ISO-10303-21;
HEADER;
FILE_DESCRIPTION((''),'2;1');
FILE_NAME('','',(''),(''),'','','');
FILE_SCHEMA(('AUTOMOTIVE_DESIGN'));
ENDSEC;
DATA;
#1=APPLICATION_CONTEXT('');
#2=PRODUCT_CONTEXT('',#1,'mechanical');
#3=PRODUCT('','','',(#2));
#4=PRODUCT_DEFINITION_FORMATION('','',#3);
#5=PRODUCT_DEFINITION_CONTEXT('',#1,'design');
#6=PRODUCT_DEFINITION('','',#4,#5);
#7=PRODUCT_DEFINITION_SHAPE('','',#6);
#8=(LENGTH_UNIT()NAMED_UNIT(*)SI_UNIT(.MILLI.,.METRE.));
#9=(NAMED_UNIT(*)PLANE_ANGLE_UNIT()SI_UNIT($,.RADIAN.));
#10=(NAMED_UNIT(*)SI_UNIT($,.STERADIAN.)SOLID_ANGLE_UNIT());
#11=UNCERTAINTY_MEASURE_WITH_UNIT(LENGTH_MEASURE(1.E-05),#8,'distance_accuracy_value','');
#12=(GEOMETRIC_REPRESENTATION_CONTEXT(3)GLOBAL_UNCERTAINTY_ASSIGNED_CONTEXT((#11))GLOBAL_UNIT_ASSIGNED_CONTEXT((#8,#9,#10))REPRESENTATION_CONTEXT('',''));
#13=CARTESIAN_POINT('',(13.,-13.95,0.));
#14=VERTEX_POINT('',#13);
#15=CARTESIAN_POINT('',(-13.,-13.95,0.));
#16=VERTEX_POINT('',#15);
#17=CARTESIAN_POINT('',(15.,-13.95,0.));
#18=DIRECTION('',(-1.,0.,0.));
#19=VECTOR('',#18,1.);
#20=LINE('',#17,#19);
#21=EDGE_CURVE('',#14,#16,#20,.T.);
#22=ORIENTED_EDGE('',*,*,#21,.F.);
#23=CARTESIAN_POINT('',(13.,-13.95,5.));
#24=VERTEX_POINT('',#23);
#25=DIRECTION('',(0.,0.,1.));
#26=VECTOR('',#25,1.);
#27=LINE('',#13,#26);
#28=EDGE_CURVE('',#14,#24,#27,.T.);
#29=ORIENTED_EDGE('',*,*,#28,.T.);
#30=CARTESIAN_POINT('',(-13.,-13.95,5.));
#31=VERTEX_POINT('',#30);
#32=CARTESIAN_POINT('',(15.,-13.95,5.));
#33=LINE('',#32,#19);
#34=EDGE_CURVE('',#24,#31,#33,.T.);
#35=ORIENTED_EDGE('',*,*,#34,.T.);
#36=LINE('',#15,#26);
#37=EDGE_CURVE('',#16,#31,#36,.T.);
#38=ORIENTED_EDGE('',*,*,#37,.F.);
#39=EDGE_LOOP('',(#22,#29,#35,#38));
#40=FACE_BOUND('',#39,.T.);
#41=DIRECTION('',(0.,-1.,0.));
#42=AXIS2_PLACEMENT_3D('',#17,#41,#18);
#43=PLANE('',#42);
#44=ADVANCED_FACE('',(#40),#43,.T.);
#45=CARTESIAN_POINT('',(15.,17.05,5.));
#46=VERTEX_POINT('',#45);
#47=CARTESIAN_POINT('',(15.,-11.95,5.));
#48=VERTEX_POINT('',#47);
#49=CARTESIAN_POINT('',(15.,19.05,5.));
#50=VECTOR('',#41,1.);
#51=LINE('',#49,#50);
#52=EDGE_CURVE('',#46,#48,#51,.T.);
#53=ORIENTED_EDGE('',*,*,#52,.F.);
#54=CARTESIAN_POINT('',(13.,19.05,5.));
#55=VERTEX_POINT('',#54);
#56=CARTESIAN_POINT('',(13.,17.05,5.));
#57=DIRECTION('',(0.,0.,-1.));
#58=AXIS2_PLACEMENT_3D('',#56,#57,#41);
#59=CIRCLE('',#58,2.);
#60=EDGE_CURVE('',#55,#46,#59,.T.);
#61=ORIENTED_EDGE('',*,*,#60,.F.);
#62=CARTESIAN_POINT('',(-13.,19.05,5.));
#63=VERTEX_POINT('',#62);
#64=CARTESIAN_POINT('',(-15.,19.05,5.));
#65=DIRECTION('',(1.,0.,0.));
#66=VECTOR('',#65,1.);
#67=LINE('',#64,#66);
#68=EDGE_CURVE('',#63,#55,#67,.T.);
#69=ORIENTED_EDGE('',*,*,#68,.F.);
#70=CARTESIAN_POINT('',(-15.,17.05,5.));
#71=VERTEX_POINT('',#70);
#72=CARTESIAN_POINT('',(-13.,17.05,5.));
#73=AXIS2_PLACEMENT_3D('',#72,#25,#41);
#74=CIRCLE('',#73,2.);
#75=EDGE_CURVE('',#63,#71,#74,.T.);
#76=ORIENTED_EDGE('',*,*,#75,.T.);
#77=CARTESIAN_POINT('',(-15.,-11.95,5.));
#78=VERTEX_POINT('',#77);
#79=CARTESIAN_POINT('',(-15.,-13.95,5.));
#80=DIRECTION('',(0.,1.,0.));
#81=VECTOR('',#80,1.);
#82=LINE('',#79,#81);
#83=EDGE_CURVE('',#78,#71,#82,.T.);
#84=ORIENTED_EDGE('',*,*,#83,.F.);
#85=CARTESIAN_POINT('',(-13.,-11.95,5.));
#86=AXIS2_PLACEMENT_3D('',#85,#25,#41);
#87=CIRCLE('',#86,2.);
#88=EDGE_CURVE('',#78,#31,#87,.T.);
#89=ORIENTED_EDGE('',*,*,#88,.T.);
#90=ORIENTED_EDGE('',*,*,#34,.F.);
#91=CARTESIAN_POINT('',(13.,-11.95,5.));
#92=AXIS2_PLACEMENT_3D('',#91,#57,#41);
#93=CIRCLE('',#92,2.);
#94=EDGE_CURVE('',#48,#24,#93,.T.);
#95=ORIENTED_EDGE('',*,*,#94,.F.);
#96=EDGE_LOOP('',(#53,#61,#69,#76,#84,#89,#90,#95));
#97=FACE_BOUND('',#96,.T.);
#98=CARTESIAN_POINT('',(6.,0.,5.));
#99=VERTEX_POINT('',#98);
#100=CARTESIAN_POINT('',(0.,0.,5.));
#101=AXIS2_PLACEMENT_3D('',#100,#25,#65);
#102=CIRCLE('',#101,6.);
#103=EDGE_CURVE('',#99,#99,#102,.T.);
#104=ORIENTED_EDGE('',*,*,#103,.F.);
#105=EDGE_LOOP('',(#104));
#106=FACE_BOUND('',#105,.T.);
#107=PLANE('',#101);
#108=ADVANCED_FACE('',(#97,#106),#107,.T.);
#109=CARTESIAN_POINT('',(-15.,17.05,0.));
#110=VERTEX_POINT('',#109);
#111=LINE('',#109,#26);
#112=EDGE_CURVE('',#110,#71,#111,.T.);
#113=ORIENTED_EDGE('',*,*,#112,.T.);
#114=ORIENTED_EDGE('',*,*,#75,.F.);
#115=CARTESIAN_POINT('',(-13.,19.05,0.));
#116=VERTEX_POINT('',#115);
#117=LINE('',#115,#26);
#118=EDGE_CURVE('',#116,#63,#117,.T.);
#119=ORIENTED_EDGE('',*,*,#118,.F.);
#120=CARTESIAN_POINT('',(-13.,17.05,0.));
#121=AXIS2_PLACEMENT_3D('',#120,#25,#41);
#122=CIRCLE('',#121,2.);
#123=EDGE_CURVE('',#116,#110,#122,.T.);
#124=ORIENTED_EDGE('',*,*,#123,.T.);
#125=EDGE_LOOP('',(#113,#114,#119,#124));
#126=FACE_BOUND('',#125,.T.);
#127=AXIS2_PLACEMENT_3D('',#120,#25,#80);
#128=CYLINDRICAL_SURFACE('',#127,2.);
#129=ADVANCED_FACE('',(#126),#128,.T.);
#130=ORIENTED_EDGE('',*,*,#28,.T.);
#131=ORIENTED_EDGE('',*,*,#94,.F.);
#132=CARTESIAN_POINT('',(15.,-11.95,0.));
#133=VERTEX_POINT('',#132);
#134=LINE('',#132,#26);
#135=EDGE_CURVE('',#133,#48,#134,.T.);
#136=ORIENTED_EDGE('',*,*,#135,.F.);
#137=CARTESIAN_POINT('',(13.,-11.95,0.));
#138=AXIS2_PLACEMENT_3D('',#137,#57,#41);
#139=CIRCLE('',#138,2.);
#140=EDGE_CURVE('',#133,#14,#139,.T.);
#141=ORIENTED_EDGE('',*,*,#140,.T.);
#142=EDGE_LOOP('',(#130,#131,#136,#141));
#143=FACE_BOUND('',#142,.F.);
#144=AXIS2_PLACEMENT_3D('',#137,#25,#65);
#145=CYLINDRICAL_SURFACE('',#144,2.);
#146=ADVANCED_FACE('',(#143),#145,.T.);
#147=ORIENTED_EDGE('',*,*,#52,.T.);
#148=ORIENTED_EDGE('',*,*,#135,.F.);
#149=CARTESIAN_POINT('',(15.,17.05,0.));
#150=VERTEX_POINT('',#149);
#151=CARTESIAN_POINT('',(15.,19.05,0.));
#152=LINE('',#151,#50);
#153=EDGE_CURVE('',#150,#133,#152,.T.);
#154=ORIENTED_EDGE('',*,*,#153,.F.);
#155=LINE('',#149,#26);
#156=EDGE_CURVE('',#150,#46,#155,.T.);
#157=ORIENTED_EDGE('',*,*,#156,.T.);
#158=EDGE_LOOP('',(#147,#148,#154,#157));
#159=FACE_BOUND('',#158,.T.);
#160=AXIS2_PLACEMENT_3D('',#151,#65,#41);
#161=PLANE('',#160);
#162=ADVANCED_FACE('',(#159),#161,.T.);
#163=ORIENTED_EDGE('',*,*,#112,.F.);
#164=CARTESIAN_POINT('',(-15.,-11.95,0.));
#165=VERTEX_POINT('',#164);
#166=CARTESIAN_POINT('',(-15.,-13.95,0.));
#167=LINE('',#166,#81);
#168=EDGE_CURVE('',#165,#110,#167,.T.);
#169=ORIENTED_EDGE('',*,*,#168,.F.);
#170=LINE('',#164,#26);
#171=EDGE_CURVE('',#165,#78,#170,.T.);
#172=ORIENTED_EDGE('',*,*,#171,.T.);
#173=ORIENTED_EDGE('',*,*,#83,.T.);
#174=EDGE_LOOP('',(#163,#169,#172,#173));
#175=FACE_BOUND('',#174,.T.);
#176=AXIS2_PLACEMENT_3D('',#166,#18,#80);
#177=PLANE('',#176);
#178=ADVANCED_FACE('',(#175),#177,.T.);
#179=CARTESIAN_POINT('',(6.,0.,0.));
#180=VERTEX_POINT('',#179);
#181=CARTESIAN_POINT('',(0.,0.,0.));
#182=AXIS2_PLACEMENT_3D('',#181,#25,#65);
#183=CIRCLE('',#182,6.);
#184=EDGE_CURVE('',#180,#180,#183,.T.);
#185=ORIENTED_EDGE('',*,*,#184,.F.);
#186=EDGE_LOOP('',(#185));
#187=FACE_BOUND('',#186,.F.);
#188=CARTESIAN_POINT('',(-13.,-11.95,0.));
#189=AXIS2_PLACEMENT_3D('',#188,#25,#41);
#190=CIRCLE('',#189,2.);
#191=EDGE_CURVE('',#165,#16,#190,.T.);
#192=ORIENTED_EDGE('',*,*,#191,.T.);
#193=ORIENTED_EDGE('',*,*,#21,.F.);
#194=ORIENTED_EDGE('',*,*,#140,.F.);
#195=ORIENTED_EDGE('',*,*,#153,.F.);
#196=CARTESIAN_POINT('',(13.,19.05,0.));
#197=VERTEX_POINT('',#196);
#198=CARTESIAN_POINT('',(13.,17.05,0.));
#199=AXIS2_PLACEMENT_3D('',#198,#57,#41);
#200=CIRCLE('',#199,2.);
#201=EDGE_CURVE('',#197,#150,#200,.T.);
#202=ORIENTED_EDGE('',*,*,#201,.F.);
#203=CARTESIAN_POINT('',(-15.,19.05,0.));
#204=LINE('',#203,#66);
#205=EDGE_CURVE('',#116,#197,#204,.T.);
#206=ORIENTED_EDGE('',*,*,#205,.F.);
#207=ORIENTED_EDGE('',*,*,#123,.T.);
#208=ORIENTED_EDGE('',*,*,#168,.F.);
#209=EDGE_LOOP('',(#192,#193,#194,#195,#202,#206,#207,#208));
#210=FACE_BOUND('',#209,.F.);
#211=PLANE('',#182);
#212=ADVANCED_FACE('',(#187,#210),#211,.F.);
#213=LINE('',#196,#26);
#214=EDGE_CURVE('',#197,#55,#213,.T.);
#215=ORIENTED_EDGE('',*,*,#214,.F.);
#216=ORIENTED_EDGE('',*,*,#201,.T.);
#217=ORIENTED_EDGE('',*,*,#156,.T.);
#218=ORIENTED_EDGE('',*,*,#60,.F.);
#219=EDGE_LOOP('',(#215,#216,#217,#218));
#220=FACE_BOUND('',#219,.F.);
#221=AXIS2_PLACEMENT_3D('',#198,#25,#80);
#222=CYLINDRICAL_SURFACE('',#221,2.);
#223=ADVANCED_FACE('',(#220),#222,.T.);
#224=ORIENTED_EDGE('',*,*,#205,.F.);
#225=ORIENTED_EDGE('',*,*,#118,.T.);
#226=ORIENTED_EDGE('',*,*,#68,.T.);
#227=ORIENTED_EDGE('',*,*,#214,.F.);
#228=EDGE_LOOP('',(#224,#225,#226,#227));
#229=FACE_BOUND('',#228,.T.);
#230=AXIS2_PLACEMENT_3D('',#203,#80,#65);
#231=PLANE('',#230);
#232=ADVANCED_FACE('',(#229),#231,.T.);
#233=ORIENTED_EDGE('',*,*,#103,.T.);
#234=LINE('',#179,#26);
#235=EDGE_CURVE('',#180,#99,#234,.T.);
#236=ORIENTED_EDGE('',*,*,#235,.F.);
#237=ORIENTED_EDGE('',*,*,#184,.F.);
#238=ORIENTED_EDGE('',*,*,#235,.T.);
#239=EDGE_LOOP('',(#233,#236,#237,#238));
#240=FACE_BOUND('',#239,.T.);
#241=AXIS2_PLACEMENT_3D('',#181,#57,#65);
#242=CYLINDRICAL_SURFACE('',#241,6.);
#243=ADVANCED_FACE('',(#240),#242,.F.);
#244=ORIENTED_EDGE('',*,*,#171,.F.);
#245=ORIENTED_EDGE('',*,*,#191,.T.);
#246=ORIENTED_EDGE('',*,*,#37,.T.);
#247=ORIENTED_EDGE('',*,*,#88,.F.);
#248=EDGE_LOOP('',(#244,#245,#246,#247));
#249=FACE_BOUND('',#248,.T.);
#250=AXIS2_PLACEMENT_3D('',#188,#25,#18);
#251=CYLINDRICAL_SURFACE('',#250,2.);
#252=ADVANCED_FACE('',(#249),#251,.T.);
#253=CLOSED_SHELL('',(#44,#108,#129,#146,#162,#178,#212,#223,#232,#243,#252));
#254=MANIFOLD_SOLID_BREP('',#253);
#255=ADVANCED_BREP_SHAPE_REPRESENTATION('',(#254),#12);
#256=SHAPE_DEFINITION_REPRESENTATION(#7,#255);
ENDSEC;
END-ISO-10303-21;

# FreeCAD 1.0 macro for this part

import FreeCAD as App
import Part
import Sketcher
from FreeCAD import Vector


def edges_at(feature, points):
    """Names of the edges that pass closest to the given points."""
    edges = feature.Shape.Edges
    near = lambda p: min(range(len(edges)), key=lambda i: edges[i].distToShape(Part.Vertex(*p))[0])
    return sorted({f"Edge{near(p) + 1}" for p in points})


def add_polygon(sketch, points):
    """Adds a closed chain of lines whose ends are joined by coincident constraints."""
    first, n = sketch.GeometryCount, len(points)
    for a, b in zip(points, points[1:] + points[:1]):
        sketch.addGeometry(Part.LineSegment(App.Vector(*a, 0), App.Vector(*b, 0)), False)
    for i in range(n):
        sketch.addConstraint(Sketcher.Constraint("Coincident", first + i, 2, first + (i + 1) % n, 1))

doc = App.newDocument("Part")
params = doc.addObject("Spreadsheet::Sheet", "Params")
for row, (alias, value) in enumerate([
    ("sketch1_width", "30 mm"),
    ("sketch1_height", "33 mm"),
    ("pad1_length", "5 mm"),
    ("sketch2_diameter", "12 mm"),
    ("pocket1_length", "5 mm"),
    ("fillet_radius", "2 mm"),
], start=1):
    params.set(f"A{row}", alias)
    params.set(f"B{row}", "=" + value)
    params.setAlias(f"B{row}", alias)

body = doc.addObject("PartDesign::Body", "Body")

sketch1 = doc.addObject("Sketcher::SketchObject", "Sketch")
body.addObject(sketch1)
sketch1.AttachmentSupport = (doc.XY_Plane, [""])
sketch1.MapMode = "FlatFace"
add_polygon(sketch1, [(15, 19.05), (-15, 19.05), (-15, -13.95), (15, -13.95)])
sketch1.addConstraint([
    Sketcher.Constraint("Horizontal", 0),
    Sketcher.Constraint("Vertical", 1),
    Sketcher.Constraint("Horizontal", 2),
    Sketcher.Constraint("Vertical", 3),
    Sketcher.Constraint("DistanceX", 0, 2, 0, 1, 30.0),
    Sketcher.Constraint("DistanceY", 1, 2, 1, 1, 33.0),
    Sketcher.Constraint("DistanceX", 0, 2, -1, 1, 15.0),
    Sketcher.Constraint("DistanceY", -1, 1, 0, 2, 19.05),
])
sketch1.setExpression("Constraints[8]", "Params.sketch1_width")
sketch1.setExpression("Constraints[9]", "Params.sketch1_height")
pad1 = doc.addObject("PartDesign::Pad", "Pad")
body.addObject(pad1)
pad1.Profile = sketch1
pad1.setExpression("Length", "Params.pad1_length")

sketch2 = doc.addObject("Sketcher::SketchObject", "Sketch001")
body.addObject(sketch2)
sketch2.AttachmentSupport = (doc.XY_Plane, [""])
sketch2.MapMode = "FlatFace"
sketch2.addGeometry(Part.Circle(Vector(0, 0, 0), Vector(0, 0, 1), 6), False)
sketch2.addConstraint([
    Sketcher.Constraint("Coincident", 0, 3, -1, 1),
    Sketcher.Constraint("Diameter", 0, 12.0),
])
sketch2.setExpression("Constraints[1]", "Params.sketch2_diameter")
pocket1 = doc.addObject("PartDesign::Pocket", "Pocket")
body.addObject(pocket1)
pocket1.Profile = sketch2
pocket1.setExpression("Length", "Params.pocket1_length")
pocket1.Reversed = True
doc.recompute()

fillet = doc.addObject("PartDesign::Fillet", "Fillet")
body.addObject(fillet)
fillet.Base = (pocket1, edges_at(pocket1, [
    (15, 19.05, 2.5),
    (15, -13.95, 2.5),
    (-15, -13.95, 2.5),
    (-15, 19.05, 2.5),
]))
fillet.setExpression("Radius", "Params.fillet_radius")

doc.recompute()
